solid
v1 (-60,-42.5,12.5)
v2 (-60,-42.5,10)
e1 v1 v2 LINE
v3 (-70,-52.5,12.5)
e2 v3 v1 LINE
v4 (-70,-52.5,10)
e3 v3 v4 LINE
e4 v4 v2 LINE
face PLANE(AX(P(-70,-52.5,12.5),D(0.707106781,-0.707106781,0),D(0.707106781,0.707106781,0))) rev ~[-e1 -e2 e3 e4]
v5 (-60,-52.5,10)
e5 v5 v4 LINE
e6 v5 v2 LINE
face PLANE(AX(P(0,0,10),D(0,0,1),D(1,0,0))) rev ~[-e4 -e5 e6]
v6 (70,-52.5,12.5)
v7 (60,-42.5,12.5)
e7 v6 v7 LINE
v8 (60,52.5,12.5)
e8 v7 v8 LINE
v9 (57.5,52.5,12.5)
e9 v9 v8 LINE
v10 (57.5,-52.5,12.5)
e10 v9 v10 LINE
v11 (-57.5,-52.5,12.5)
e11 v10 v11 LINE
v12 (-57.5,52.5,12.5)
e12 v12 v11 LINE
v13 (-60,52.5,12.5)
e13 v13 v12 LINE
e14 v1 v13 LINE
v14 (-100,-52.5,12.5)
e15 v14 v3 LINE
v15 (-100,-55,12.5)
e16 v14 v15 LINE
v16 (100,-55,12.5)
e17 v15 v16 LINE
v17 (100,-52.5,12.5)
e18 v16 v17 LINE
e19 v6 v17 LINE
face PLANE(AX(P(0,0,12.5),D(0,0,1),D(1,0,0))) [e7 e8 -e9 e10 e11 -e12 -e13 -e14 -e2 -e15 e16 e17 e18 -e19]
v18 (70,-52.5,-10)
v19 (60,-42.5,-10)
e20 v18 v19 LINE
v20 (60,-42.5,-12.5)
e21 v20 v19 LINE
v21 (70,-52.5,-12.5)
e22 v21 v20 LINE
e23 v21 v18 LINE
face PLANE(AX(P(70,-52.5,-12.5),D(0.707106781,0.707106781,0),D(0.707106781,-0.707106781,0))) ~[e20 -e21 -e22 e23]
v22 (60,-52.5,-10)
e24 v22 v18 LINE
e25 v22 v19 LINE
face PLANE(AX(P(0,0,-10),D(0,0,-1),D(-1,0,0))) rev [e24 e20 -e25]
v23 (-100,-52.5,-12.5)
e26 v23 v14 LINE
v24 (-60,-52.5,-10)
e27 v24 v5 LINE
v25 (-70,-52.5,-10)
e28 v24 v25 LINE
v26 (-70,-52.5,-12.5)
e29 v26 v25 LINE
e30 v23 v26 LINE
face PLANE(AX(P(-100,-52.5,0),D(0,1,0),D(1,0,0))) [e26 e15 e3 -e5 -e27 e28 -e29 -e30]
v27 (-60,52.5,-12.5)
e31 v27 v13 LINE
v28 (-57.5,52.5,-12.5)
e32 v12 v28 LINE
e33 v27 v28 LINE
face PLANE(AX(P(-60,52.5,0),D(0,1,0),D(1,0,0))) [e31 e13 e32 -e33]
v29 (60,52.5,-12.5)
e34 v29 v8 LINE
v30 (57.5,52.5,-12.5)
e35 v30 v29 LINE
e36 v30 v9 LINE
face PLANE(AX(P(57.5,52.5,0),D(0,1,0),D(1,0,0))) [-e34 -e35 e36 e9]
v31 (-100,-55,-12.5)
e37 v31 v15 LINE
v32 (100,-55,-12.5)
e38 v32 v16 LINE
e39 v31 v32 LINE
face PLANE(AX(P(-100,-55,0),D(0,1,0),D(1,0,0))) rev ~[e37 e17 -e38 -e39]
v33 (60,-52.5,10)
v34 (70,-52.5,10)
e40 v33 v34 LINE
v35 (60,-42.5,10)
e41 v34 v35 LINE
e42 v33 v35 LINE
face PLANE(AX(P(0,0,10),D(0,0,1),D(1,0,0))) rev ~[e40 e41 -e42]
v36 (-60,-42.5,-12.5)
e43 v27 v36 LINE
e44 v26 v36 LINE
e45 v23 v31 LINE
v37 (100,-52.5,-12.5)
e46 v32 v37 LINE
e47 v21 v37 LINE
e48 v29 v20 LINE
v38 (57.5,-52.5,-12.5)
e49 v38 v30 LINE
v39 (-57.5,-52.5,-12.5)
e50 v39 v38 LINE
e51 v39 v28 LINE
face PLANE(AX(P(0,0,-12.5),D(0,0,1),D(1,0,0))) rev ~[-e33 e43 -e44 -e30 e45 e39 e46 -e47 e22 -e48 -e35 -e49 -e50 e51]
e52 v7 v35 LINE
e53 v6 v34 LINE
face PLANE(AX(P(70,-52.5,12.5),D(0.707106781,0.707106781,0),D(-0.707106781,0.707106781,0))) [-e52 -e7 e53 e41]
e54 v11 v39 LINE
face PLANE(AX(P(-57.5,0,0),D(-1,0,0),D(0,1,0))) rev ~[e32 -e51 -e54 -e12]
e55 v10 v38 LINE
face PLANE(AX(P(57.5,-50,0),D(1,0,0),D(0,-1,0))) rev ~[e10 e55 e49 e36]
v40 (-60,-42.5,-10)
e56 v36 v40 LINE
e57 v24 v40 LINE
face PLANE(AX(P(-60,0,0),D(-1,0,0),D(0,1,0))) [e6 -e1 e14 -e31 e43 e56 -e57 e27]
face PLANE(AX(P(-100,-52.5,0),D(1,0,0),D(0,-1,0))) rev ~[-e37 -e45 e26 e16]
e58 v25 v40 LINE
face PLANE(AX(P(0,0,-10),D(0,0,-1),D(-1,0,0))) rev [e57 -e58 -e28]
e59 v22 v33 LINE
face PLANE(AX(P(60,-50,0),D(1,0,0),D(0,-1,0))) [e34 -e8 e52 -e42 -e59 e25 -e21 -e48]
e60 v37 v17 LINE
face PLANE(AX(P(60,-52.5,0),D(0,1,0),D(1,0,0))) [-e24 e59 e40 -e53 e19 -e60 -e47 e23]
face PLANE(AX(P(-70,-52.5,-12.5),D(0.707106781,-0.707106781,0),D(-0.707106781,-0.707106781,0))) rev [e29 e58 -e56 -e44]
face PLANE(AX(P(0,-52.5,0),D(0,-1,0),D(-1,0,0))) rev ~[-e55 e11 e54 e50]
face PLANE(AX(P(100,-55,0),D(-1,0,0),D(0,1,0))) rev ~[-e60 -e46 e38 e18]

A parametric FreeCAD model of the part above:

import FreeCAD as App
import Part
import Sketcher
from FreeCAD import Vector

doc = App.newDocument("Part")
body = doc.addObject("PartDesign::Body", "Body")

# Sketch on XY plane
sketch1 = body.newObject("Sketcher::SketchObject", "Sketch")
sketch1.AttachmentSupport = (doc.getObject("XY_Plane"), [""])
sketch1.MapMode = "FlatFace"
sketch1.addGeometry(Part.LineSegment(Vector(-57.5, 52.5, 0), Vector(-60, 52.5, 0)), False)
sketch1.addGeometry(Part.LineSegment(Vector(-60, 52.5, 0), Vector(-60, -52.5, 0)), False)
sketch1.addGeometry(Part.LineSegment(Vector(-60, -52.5, 0), Vector(-100, -52.5, 0)), False)
sketch1.addGeometry(Part.LineSegment(Vector(-100, -52.5, 0), Vector(-100, -55, 0)), False)
sketch1.addGeometry(Part.LineSegment(Vector(-100, -55, 0), Vector(100, -55, 0)), False)
sketch1.addGeometry(Part.LineSegment(Vector(100, -55, 0), Vector(100, -52.5, 0)), False)
sketch1.addGeometry(Part.LineSegment(Vector(100, -52.5, 0), Vector(60, -52.5, 0)), False)
sketch1.addGeometry(Part.LineSegment(Vector(60, -52.5, 0), Vector(60, 52.5, 0)), False)
sketch1.addGeometry(Part.LineSegment(Vector(60, 52.5, 0), Vector(57.5, 52.5, 0)), False)
sketch1.addGeometry(Part.LineSegment(Vector(57.5, 52.5, 0), Vector(57.5, -52.5, 0)), False)
sketch1.addGeometry(Part.LineSegment(Vector(57.5, -52.5, 0), Vector(-57.5, -52.5, 0)), False)
sketch1.addGeometry(Part.LineSegment(Vector(-57.5, -52.5, 0), Vector(-57.5, 52.5, 0)), False)
sketch1.addConstraint(Sketcher.Constraint("Coincident", 0, 2, 1, 1))
sketch1.addConstraint(Sketcher.Constraint("Coincident", 1, 2, 2, 1))
sketch1.addConstraint(Sketcher.Constraint("Coincident", 2, 2, 3, 1))
sketch1.addConstraint(Sketcher.Constraint("Coincident", 3, 2, 4, 1))
sketch1.addConstraint(Sketcher.Constraint("Coincident", 4, 2, 5, 1))
sketch1.addConstraint(Sketcher.Constraint("Coincident", 5, 2, 6, 1))
sketch1.addConstraint(Sketcher.Constraint("Coincident", 6, 2, 7, 1))
sketch1.addConstraint(Sketcher.Constraint("Coincident", 7, 2, 8, 1))
sketch1.addConstraint(Sketcher.Constraint("Coincident", 8, 2, 9, 1))
sketch1.addConstraint(Sketcher.Constraint("Coincident", 9, 2, 10, 1))
sketch1.addConstraint(Sketcher.Constraint("Coincident", 10, 2, 11, 1))
sketch1.addConstraint(Sketcher.Constraint("Coincident", 11, 2, 0, 1))
sketch1.addConstraint(Sketcher.Constraint("Horizontal", 0))
sketch1.addConstraint(Sketcher.Constraint("Vertical", 1))
sketch1.addConstraint(Sketcher.Constraint("Horizontal", 2))
sketch1.addConstraint(Sketcher.Constraint("Vertical", 3))
sketch1.addConstraint(Sketcher.Constraint("Horizontal", 4))
sketch1.addConstraint(Sketcher.Constraint("Vertical", 5))
sketch1.addConstraint(Sketcher.Constraint("Horizontal", 6))
sketch1.addConstraint(Sketcher.Constraint("Vertical", 7))
sketch1.addConstraint(Sketcher.Constraint("Horizontal", 8))
sketch1.addConstraint(Sketcher.Constraint("Vertical", 9))
sketch1.addConstraint(Sketcher.Constraint("Horizontal", 10))
sketch1.addConstraint(Sketcher.Constraint("Vertical", 11))
sketch1.addConstraint(Sketcher.Constraint("Symmetric", 0, 2, 6, 2, -1, 1))
sketch1.addConstraint(Sketcher.Constraint("Symmetric", 8, 2, 10, 2, -1, 1))
sketch1.addConstraint(Sketcher.Constraint("Symmetric", 2, 2, 5, 2, -2))
sketch1.addConstraint(Sketcher.Constraint("Horizontal", 0, 2, 7, 2))
sketch1.addConstraint(Sketcher.Constraint("Equal", 8, 3))
sketch1.addConstraint(Sketcher.Constraint("DistanceX", 4, 1, 4, 2, 200.0))
sketch1.addConstraint(Sketcher.Constraint("DistanceX", 10, 2, 10, 1, 115.0))
sketch1.addConstraint(Sketcher.Constraint("DistanceY", 1, 2, 1, 1, 105.0))
sketch1.addConstraint(Sketcher.Constraint("DistanceX", 1, 2, 6, 2, 120.0))
pad1 = body.newObject("PartDesign::Pad", "Pad")
pad1.Profile = sketch1
pad1.Length = 25
pad1.Midplane = True

# Sketch on XY plane
sketch2 = body.newObject("Sketcher::SketchObject", "Sketch001")
sketch2.AttachmentSupport = (doc.getObject("XY_Plane"), [""])
sketch2.MapMode = "FlatFace"
sketch2.AttachmentOffset = App.Placement(Vector(0, 0, 12.5), App.Rotation())
sketch2.addGeometry(Part.LineSegment(Vector(-70, -52, 0), Vector(-60, -52, 0)), False)
sketch2.addGeometry(Part.LineSegment(Vector(-60, -52, 0), Vector(-60, -42, 0)), False)
sketch2.addGeometry(Part.LineSegment(Vector(-60, -42, 0), Vector(-70, -52, 0)), False)
sketch2.addGeometry(Part.LineSegment(Vector(60, -42, 0), Vector(60, -52, 0)), False)
sketch2.addGeometry(Part.LineSegment(Vector(60, -52, 0), Vector(70, -52, 0)), False)
sketch2.addGeometry(Part.LineSegment(Vector(70, -52, 0), Vector(60, -42, 0)), False)
sketch2.addConstraint(Sketcher.Constraint("Coincident", 0, 2, 1, 1))
sketch2.addConstraint(Sketcher.Constraint("Coincident", 1, 2, 2, 1))
sketch2.addConstraint(Sketcher.Constraint("Coincident", 2, 2, 0, 1))
sketch2.addConstraint(Sketcher.Constraint("Coincident", 3, 2, 4, 1))
sketch2.addConstraint(Sketcher.Constraint("Coincident", 4, 2, 5, 1))
sketch2.addConstraint(Sketcher.Constraint("Coincident", 5, 2, 3, 1))
sketch2.addConstraint(Sketcher.Constraint("Horizontal", 0))
sketch2.addConstraint(Sketcher.Constraint("Vertical", 1))
sketch2.addConstraint(Sketcher.Constraint("Vertical", 3))
sketch2.addConstraint(Sketcher.Constraint("Horizontal", 4))
sketch2.addConstraint(Sketcher.Constraint("Symmetric", 0, 2, 3, 2, -2))
sketch2.addConstraint(Sketcher.Constraint("Perpendicular", 2, 5))
sketch2.addConstraint(Sketcher.Constraint("Horizontal", 1, 2, 5, 2))
sketch2.addConstraint(Sketcher.Constraint("Equal", 0, 4))
sketch2.addConstraint(Sketcher.Constraint("DistanceX", 0, 1, 0, 2, 10.0))
sketch2.addConstraint(Sketcher.Constraint("DistanceX", 0, 2, -1, 1, 60.0))
sketch2.addConstraint(Sketcher.Constraint("DistanceY", 0, 2, -1, 1, 52.5))
pad2 = body.newObject("PartDesign::Pad", "Pad001")
pad2.Profile = sketch2
pad2.Length = 2.5
pad2.Reversed = True
doc.recompute()

mirrored = body.newObject("PartDesign::Mirrored", "Mirrored")
mirrored.Originals = [pad2]
mirrored.MirrorPlane = (doc.getObject("XY_Plane"), [""])
body.Tip = mirrored

doc.recompute()
